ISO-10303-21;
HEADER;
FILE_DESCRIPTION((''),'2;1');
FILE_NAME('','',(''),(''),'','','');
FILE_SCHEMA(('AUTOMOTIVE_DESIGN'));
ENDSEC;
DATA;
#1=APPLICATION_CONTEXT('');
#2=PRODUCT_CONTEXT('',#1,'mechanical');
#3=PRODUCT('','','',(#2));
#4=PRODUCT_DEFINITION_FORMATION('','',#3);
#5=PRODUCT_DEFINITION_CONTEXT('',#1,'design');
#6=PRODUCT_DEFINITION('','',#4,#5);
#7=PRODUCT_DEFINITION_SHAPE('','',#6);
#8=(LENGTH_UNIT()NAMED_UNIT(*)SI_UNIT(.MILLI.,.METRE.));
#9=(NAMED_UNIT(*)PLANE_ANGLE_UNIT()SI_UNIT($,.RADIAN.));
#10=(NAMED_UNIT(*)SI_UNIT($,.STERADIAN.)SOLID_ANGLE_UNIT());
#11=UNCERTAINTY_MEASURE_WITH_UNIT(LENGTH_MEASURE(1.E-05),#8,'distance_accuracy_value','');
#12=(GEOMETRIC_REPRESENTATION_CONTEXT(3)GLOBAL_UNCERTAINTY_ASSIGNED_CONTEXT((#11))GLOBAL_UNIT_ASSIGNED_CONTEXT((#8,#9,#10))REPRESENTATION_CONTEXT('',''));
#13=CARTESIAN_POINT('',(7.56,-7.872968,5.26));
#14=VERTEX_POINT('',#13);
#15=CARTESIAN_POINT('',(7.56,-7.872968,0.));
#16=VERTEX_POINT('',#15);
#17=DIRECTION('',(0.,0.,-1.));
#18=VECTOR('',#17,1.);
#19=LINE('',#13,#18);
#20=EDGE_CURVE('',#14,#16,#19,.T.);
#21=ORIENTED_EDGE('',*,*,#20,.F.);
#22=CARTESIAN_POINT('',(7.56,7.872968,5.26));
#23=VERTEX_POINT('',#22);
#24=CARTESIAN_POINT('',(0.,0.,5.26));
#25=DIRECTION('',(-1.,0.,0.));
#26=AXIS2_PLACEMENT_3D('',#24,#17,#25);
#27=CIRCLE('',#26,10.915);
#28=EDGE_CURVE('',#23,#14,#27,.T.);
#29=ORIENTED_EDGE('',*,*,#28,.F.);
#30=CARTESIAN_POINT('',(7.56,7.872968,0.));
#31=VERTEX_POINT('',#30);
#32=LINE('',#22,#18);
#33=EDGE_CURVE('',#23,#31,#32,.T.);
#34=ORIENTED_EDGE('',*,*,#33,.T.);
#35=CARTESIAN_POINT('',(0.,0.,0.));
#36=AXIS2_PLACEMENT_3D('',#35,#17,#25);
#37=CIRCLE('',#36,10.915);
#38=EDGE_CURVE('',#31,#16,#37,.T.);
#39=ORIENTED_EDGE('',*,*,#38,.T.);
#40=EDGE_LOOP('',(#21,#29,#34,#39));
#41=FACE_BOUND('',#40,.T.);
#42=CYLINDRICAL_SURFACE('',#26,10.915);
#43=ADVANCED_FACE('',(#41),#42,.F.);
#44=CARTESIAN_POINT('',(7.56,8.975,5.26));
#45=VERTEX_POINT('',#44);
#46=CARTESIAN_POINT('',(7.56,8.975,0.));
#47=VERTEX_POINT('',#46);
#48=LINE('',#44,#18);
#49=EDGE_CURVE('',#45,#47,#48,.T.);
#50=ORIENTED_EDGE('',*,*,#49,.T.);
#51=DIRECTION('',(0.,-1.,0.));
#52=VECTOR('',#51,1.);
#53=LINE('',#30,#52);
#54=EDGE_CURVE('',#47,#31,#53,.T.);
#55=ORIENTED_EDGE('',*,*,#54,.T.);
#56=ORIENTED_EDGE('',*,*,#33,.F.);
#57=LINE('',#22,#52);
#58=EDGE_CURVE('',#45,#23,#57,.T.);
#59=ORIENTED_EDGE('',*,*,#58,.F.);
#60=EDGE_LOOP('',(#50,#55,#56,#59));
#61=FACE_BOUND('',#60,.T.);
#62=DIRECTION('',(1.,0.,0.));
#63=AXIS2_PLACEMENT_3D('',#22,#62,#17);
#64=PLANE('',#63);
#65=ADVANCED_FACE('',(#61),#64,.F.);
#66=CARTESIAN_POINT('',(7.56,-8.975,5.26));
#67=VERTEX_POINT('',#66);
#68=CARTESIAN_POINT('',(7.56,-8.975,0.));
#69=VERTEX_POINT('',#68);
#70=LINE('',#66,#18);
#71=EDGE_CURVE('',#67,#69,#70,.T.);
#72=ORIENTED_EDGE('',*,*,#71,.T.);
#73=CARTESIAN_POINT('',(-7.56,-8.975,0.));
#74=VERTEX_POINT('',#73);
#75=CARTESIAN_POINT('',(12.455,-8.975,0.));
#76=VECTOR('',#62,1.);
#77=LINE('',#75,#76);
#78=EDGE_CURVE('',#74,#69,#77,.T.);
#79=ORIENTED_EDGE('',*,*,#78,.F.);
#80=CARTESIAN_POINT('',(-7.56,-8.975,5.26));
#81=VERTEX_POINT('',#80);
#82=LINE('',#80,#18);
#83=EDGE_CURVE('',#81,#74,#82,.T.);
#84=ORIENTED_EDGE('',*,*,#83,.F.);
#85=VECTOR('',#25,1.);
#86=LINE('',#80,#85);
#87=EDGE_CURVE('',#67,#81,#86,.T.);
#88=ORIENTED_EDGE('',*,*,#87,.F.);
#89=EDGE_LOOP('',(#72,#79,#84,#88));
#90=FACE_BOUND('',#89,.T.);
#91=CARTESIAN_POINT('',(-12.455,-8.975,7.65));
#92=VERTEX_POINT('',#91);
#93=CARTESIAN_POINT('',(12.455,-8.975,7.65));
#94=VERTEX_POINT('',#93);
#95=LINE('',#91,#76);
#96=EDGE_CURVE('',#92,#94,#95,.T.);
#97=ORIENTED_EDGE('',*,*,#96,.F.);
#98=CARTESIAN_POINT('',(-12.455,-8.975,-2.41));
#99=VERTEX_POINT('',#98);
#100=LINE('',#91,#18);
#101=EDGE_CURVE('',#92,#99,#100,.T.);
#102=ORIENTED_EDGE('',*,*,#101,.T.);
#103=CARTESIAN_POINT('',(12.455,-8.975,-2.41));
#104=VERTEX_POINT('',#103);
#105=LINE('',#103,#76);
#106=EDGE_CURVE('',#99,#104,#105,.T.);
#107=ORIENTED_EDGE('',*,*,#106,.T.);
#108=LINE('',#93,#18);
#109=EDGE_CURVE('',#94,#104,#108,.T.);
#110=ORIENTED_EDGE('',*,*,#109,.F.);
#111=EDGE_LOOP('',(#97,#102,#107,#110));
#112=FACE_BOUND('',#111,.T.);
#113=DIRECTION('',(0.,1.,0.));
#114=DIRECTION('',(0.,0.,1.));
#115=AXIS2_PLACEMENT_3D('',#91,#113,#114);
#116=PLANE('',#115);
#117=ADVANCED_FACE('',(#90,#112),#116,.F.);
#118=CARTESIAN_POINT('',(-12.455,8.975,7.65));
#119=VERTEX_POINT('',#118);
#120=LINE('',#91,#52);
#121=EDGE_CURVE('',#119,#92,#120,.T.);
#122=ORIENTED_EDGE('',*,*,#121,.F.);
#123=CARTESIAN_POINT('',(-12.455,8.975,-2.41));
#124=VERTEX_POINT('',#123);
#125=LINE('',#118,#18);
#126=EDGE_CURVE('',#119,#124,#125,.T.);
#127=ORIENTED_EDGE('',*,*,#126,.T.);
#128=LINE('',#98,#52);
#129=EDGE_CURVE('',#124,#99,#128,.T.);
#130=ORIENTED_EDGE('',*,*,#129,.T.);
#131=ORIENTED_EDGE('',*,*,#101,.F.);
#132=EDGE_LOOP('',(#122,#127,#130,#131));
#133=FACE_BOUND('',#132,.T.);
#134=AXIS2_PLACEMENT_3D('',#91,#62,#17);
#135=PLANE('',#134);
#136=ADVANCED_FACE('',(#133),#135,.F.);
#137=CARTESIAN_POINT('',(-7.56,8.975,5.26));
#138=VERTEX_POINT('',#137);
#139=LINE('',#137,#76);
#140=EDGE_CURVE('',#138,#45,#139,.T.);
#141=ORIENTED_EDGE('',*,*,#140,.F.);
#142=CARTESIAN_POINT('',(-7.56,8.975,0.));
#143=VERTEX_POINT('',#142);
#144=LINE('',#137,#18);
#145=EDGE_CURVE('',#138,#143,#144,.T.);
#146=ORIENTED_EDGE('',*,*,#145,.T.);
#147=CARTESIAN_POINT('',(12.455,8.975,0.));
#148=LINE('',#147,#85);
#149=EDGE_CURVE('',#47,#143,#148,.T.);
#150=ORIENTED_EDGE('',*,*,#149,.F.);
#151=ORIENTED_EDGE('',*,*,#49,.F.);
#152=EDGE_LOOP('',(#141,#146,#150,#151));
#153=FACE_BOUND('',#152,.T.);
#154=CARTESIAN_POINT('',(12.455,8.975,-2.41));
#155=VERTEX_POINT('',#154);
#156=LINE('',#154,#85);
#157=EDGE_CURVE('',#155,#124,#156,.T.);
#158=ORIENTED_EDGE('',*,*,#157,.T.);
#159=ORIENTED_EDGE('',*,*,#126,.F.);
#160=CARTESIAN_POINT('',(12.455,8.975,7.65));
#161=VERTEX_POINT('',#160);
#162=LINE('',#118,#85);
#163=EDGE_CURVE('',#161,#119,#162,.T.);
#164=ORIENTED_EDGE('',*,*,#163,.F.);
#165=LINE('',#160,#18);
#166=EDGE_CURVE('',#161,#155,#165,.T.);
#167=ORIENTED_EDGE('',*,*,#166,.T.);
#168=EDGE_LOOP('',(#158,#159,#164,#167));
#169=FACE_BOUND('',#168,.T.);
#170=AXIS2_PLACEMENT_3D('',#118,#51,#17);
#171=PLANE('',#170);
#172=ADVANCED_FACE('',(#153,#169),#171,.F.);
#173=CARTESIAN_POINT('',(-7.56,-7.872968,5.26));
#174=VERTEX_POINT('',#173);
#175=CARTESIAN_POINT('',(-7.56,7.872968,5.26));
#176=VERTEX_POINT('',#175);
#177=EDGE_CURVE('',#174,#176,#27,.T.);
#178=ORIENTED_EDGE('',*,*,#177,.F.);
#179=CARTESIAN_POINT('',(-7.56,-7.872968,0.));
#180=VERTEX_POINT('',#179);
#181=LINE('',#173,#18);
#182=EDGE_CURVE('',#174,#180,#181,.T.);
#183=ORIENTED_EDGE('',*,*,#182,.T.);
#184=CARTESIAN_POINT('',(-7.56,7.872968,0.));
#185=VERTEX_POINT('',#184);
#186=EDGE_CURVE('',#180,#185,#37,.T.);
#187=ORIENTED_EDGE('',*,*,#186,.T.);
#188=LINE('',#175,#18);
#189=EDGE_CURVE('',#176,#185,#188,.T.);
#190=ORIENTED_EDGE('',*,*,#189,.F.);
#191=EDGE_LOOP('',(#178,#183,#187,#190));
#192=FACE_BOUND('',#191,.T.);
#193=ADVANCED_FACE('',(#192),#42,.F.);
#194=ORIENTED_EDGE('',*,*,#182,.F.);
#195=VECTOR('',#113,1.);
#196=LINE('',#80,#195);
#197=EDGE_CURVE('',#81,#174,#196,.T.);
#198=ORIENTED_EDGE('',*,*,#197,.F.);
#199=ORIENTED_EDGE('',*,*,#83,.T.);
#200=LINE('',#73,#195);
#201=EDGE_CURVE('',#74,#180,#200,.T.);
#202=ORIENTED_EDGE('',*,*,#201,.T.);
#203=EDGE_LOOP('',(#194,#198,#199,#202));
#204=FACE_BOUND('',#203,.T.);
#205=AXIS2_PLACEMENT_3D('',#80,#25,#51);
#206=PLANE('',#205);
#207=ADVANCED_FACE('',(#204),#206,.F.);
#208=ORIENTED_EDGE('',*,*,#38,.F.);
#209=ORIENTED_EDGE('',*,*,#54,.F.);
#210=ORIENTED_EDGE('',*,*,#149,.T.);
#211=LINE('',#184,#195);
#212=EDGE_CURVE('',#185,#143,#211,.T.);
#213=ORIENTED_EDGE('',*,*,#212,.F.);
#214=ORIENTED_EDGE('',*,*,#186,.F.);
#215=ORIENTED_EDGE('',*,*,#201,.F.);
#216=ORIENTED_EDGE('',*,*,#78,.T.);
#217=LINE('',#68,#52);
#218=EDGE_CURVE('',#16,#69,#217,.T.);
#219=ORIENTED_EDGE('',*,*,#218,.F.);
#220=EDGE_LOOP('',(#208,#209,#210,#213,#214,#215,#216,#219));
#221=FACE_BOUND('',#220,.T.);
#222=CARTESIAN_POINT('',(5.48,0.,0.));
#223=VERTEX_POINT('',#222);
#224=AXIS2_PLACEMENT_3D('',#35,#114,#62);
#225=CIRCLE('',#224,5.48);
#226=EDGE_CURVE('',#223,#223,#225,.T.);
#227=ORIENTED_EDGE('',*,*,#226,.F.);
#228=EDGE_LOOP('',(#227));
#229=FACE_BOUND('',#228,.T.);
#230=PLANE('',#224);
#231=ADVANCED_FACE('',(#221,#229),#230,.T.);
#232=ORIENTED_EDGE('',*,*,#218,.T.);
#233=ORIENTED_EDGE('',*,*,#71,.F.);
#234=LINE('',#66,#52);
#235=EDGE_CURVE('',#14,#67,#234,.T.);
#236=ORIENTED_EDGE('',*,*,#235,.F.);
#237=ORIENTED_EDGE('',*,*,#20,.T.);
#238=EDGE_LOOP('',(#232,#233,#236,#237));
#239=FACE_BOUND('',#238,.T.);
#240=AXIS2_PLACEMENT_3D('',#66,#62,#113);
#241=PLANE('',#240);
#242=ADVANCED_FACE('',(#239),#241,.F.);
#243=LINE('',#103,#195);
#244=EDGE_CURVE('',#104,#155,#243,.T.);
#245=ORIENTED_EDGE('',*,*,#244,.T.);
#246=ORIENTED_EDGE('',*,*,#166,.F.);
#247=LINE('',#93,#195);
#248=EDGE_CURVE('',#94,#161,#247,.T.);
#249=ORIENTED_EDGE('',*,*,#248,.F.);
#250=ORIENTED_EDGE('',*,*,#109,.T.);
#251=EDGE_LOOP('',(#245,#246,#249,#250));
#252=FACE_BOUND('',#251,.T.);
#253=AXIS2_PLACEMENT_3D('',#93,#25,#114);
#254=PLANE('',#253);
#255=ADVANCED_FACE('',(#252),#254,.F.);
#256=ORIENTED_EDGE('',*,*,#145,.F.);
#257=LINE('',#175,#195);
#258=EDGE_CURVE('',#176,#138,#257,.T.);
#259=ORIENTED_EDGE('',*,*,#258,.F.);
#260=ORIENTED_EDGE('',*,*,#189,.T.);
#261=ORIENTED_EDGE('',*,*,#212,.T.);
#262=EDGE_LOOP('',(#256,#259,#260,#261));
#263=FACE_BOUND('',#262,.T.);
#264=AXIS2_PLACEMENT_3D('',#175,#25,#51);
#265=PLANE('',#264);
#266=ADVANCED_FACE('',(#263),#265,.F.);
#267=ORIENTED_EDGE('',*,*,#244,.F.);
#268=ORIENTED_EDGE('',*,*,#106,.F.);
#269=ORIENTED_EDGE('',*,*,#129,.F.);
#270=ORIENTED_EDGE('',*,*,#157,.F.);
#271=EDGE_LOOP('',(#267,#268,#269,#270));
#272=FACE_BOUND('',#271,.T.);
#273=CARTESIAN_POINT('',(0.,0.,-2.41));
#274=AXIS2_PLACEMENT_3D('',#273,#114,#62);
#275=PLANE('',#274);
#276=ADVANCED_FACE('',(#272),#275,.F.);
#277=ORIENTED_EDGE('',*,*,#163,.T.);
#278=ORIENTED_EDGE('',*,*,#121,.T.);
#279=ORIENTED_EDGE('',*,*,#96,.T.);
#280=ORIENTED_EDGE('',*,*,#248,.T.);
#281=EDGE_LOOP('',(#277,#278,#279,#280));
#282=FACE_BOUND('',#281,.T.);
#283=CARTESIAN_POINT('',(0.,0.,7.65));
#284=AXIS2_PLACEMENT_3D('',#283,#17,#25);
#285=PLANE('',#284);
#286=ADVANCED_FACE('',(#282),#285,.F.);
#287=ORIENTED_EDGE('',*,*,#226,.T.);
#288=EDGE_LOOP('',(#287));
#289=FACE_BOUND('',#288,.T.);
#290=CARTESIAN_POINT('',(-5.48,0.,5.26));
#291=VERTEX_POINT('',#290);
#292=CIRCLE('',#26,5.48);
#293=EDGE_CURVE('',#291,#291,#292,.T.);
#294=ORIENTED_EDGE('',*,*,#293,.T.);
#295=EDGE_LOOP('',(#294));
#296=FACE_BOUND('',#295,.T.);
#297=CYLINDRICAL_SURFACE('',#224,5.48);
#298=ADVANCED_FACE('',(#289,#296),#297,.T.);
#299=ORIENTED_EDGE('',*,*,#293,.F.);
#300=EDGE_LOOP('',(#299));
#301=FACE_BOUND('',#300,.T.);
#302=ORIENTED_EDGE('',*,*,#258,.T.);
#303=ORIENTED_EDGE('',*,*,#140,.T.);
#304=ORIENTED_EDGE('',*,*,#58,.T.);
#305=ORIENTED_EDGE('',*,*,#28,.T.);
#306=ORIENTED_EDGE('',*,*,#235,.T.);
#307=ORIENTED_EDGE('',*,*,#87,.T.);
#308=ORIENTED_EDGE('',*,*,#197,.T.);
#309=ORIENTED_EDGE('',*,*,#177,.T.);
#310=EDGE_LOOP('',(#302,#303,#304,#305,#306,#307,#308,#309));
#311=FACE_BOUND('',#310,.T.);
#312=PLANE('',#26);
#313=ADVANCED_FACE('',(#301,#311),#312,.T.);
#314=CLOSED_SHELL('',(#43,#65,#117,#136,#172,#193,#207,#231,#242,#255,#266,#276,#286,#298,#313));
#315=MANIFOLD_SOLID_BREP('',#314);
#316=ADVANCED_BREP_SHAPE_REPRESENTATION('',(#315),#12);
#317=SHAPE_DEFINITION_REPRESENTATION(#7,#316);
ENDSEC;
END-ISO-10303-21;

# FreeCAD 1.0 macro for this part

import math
import FreeCAD as App
import Part
import Sketcher
Q = App.Units.Quantity


def add_polygon(sketch, points):
    """Adds a closed chain of lines whose ends are joined by coincident constraints."""
    first, n = sketch.GeometryCount, len(points)
    for a, b in zip(points, points[1:] + points[:1]):
        sketch.addGeometry(Part.LineSegment(App.Vector(*a, 0), App.Vector(*b, 0)), False)
    for i in range(n):
        sketch.addConstraint(Sketcher.Constraint("Coincident", first + i, 2, first + (i + 1) % n, 1))

doc = App.newDocument("Part")
body = doc.addObject("PartDesign::Body", "Body")

sketch1 = body.newObject("Sketcher::SketchObject", "Sketch")
sketch1.AttachmentSupport = (doc.getObject("XY_Plane"), [""])
sketch1.MapMode = "FlatFace"
add_polygon(sketch1, [(-12, 9), (-12, -9), (12, -9), (12, 9)])
sketch1.addConstraint([
    Sketcher.Constraint("Vertical", 0),
    Sketcher.Constraint("Horizontal", 1),
    Sketcher.Constraint("Vertical", 2),
    Sketcher.Constraint("Horizontal", 3),
    Sketcher.Constraint("Symmetric", 0, 2, 2, 2, -1, 1),
    Sketcher.Constraint("DistanceX", 1, 1, 1, 2, Q("24.91 mm")),
    Sketcher.Constraint("DistanceY", 0, 2, 0, 1, Q("17.95 mm")),
])
pad1 = body.newObject("PartDesign::Pad", "Pad")
pad1.Profile = sketch1
pad1.Length = 7.65

sketch2 = body.newObject("Sketcher::SketchObject", "Sketch001")
sketch2.AttachmentSupport = (doc.getObject("XY_Plane"), [""])
sketch2.MapMode = "FlatFace"
sketch2.addGeometry([
    Part.LineSegment(App.Vector(7.6, -7.9, 0), App.Vector(7.6, -9, 0)),
    Part.LineSegment(App.Vector(7.6, -9, 0), App.Vector(-7.6, -9, 0)),
    Part.LineSegment(App.Vector(-7.6, -9, 0), App.Vector(-7.6, -7.9, 0)),
    Part.ArcOfCircle(Part.Circle(App.Vector(0, 0, 0), App.Vector(0, 0, 1), 10.9), math.radians(134), math.radians(226)),
    Part.LineSegment(App.Vector(-7.6, 7.9, 0), App.Vector(-7.6, 9, 0)),
    Part.LineSegment(App.Vector(-7.6, 9, 0), App.Vector(7.6, 9, 0)),
    Part.LineSegment(App.Vector(7.6, 9, 0), App.Vector(7.6, 7.9, 0)),
    Part.ArcOfCircle(Part.Circle(App.Vector(0, 0, 0), App.Vector(0, 0, 1), 10.9), math.radians(-46), math.radians(46)),
], False)
sketch2.addConstraint([
    Sketcher.Constraint("Coincident", 0, 2, 1, 1),
    Sketcher.Constraint("Coincident", 1, 2, 2, 1),
    Sketcher.Constraint("Coincident", 2, 2, 3, 2),
    Sketcher.Constraint("Coincident", 3, 1, 4, 1),
    Sketcher.Constraint("Coincident", 4, 2, 5, 1),
    Sketcher.Constraint("Coincident", 5, 2, 6, 1),
    Sketcher.Constraint("Coincident", 6, 2, 7, 2),
    Sketcher.Constraint("Coincident", 7, 1, 0, 1),
    Sketcher.Constraint("Vertical", 0),
    Sketcher.Constraint("Horizontal", 1),
    Sketcher.Constraint("Vertical", 2),
    Sketcher.Constraint("Vertical", 4),
    Sketcher.Constraint("Horizontal", 5),
    Sketcher.Constraint("Vertical", 6),
    Sketcher.Constraint("Coincident", 3, 3, -1, 1),
    Sketcher.Constraint("Coincident", 7, 3, -1, 1),
    Sketcher.Constraint("Equal", 3, 7),
    Sketcher.Constraint("Symmetric", 0, 2, 4, 2, -1, 1),
    Sketcher.Constraint("Horizontal", 3, 1, 6, 2),
    Sketcher.Constraint("Horizontal", 2, 2, 7, 1),
    Sketcher.Constraint("Radius", 3, Q("10.915 mm")),
    Sketcher.Constraint("DistanceX", 1, 2, 1, 1, Q("15.12 mm")),
    Sketcher.Constraint("DistanceY", 1, 2, 4, 2, Q("17.95 mm")),
])
pocket1 = body.newObject("PartDesign::Pocket", "Pocket")
pocket1.Profile = sketch2
pocket1.Length = 5.26
pocket1.Reversed = True

sketch3 = body.newObject("Sketcher::SketchObject", "Sketch002")
sketch3.AttachmentSupport = (doc.getObject("XY_Plane"), [""])
sketch3.MapMode = "FlatFace"
sketch3.AttachmentOffset = App.Placement(App.Vector(0, 0, 7.65), App.Rotation())
sketch3.addGeometry(Part.Circle(App.Vector(0, 0, 0), App.Vector(0, 0, 1), 5), False)
sketch3.addConstraint([
    Sketcher.Constraint("Coincident", 0, 3, -1, 1),
    Sketcher.Constraint("Diameter", 0, Q("10.96 mm")),
])
pad2 = body.newObject("PartDesign::Pad", "Pad001")
pad2.Profile = sketch3
pad2.Length = 7.65
pad2.Reversed = True

sketch4 = body.newObject("Sketcher::SketchObject", "Sketch003")
sketch4.AttachmentSupport = (doc.getObject("XY_Plane"), [""])
sketch4.MapMode = "FlatFace"
add_polygon(sketch4, [(-12, 9), (-12, -9), (12, -9), (12, 9)])
sketch4.addConstraint([
    Sketcher.Constraint("Vertical", 0),
    Sketcher.Constraint("Horizontal", 1),
    Sketcher.Constraint("Vertical", 2),
    Sketcher.Constraint("Horizontal", 3),
    Sketcher.Constraint("Symmetric", 0, 2, 2, 2, -1, 1),
    Sketcher.Constraint("DistanceX", 1, 1, 1, 2, Q("24.91 mm")),
    Sketcher.Constraint("DistanceY", 0, 2, 0, 1, Q("17.95 mm")),
])
pad3 = body.newObject("PartDesign::Pad", "Pad002")
pad3.Profile = sketch4
pad3.Length = 2.41
pad3.Reversed = True

doc.recompute()
